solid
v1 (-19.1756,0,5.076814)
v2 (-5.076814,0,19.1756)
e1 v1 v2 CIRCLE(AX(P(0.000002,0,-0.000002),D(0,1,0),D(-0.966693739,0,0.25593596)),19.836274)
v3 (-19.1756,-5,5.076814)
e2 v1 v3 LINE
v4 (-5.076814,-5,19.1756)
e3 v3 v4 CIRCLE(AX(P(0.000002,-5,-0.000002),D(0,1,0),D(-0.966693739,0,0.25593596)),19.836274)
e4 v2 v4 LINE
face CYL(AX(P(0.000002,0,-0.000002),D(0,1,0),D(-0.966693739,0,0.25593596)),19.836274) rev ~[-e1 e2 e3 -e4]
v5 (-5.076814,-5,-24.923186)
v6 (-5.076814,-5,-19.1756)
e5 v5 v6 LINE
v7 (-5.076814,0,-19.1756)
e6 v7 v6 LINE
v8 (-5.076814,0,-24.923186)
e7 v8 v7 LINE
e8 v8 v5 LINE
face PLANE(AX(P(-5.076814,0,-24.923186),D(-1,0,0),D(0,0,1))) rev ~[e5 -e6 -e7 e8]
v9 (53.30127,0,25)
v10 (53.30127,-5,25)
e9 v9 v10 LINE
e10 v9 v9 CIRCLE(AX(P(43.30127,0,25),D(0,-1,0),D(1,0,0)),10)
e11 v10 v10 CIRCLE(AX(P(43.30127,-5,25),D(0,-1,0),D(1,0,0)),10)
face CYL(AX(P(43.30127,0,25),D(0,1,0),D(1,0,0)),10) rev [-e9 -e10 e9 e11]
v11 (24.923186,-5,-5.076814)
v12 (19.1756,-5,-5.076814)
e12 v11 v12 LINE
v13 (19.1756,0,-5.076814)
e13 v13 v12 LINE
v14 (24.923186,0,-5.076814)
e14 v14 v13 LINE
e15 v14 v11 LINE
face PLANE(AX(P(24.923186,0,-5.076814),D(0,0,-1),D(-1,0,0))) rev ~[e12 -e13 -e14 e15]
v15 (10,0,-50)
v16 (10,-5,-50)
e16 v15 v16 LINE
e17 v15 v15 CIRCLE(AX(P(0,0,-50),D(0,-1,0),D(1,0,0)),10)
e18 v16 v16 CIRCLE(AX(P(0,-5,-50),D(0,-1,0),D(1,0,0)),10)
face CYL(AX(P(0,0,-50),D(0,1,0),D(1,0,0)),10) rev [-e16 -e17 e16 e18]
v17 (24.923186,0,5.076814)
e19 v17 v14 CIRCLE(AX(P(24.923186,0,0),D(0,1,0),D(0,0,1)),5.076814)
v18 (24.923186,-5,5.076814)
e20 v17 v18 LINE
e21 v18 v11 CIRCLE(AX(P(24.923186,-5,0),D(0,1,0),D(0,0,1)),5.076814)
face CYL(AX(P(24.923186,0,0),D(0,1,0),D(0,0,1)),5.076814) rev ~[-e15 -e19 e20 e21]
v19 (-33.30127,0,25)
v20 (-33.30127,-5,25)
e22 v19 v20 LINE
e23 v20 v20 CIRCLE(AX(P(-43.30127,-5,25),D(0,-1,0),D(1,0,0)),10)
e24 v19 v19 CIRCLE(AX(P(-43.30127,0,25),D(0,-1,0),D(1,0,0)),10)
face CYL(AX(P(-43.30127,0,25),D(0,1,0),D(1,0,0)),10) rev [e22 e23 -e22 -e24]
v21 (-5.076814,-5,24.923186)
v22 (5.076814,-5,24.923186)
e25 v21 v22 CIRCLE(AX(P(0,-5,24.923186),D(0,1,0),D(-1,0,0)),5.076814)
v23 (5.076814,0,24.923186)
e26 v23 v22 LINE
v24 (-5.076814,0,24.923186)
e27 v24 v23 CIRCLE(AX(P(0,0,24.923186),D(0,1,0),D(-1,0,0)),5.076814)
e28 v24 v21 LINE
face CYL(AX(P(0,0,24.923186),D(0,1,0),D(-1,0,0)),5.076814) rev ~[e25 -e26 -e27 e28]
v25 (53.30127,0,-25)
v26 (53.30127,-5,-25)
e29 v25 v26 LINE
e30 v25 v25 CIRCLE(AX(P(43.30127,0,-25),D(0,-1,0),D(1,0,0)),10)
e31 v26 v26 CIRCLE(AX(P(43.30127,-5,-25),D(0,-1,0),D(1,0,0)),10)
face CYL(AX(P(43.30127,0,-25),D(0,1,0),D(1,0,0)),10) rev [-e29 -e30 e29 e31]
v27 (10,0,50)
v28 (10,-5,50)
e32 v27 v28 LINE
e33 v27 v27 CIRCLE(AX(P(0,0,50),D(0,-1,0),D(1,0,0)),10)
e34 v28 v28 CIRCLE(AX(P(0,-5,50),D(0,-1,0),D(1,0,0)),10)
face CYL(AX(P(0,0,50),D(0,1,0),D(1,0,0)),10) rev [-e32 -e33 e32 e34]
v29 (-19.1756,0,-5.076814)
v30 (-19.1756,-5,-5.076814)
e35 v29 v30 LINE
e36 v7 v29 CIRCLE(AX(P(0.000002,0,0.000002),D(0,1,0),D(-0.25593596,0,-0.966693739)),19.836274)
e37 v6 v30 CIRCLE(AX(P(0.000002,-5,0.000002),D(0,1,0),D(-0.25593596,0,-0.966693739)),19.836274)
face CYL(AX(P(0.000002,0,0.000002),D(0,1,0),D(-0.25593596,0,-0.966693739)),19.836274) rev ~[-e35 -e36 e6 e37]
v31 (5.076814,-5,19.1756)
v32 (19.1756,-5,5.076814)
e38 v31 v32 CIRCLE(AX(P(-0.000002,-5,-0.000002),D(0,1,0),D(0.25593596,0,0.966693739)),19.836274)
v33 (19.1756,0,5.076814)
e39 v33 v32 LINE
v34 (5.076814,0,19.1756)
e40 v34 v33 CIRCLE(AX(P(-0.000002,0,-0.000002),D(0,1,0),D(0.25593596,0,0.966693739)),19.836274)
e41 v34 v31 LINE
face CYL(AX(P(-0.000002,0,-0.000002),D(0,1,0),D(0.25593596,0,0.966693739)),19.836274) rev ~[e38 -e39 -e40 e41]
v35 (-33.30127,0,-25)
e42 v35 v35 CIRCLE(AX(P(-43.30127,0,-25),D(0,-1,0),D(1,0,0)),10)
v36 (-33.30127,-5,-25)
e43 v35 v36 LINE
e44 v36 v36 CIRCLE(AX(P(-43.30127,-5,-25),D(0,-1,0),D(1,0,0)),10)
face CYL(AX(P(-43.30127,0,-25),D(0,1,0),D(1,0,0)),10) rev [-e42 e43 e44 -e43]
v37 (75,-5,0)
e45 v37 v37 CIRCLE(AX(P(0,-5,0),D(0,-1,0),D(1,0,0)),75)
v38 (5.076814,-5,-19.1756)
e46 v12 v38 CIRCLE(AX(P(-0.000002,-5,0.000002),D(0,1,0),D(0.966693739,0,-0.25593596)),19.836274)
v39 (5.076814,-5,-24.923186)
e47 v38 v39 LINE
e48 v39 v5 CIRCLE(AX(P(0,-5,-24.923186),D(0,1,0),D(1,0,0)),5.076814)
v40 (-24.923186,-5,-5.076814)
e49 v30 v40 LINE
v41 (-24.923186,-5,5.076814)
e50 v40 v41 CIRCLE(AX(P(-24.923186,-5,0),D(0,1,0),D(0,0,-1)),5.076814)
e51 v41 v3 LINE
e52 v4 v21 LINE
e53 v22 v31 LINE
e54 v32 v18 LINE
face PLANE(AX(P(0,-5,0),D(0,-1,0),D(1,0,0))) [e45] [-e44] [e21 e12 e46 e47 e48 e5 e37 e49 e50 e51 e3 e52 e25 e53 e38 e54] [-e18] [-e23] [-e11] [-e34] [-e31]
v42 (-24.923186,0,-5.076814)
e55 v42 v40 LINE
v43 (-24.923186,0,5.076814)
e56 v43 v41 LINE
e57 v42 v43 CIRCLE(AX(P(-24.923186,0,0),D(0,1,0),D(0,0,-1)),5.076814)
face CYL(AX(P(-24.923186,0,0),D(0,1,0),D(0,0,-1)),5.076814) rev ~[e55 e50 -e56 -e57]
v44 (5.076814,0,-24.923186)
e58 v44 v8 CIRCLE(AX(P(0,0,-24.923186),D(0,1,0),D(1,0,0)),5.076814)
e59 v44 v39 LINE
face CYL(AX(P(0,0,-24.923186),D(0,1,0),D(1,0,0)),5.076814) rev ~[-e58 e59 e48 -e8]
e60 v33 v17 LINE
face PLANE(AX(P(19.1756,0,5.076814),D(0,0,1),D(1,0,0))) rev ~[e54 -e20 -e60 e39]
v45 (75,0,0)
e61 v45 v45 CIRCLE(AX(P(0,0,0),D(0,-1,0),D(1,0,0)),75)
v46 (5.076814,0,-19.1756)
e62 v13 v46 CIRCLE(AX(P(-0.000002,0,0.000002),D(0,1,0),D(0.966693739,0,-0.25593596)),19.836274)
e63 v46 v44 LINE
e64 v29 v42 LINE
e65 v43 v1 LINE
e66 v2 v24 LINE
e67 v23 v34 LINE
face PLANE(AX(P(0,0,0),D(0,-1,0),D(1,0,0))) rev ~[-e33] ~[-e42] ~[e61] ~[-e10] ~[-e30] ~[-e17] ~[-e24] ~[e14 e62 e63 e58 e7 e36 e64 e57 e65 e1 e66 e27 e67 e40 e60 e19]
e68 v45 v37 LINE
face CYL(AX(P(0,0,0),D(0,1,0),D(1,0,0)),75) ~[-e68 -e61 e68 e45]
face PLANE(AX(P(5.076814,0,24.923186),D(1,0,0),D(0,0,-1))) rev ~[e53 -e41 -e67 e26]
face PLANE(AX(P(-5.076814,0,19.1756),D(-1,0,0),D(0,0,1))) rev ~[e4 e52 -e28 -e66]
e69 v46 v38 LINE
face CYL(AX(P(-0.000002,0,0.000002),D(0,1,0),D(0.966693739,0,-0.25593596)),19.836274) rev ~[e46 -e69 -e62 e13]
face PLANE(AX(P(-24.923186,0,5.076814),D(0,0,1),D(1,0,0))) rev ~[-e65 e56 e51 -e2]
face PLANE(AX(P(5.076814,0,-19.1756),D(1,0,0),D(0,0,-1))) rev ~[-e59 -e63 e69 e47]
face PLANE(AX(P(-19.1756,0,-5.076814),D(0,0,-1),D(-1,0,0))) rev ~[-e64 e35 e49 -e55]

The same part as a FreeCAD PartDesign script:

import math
import FreeCAD as App
import Part
import Sketcher

V = App.Vector
Q = App.Units.Quantity

doc = App.newDocument("Part")
body = doc.addObject("PartDesign::Body", "Body")

# Sketch on XZ plane
sketch1 = body.newObject("Sketcher::SketchObject", "Sketch")
sketch1.AttachmentSupport = (doc.getObject("XZ_Plane"), [""])
sketch1.MapMode = "FlatFace"
sketch1.addGeometry(Part.Circle(V(0, 0, 0), V(0, 0, 1), 75), False)
sketch1.addGeometry(Part.Circle(V(-43.30127, -25, 0), V(0, 0, 1), 10), False)
sketch1.addGeometry(Part.Circle(V(0, -50, 0), V(0, 0, 1), 10), False)
sketch1.addGeometry(Part.Circle(V(43.30127, -25, 0), V(0, 0, 1), 10), False)
sketch1.addGeometry(Part.Circle(V(-43.30127, 25, 0), V(0, 0, 1), 10), False)
sketch1.addGeometry(Part.LineSegment(V(-24.923186, 5.076814, 0), V(-19.1756, 5.076814, 0)), False)
sketch1.addGeometry(Part.ArcOfCircle(Part.Circle(V(0.000002, -0.000002, 0), V(0, 0, 1), 19.836274), math.radians(104.829052), math.radians(165.170948)), False)
sketch1.addGeometry(Part.LineSegment(V(-5.076814, 19.1756, 0), V(-5.076814, 24.923186, 0)), False)
sketch1.addGeometry(Part.ArcOfCircle(Part.Circle(V(0, 24.923186, 0), V(0, 0, 1), 5.076814), math.radians(0), math.radians(180)), False)
sketch1.addGeometry(Part.LineSegment(V(5.076814, 24.923186, 0), V(5.076814, 19.1756, 0)), False)
sketch1.addGeometry(Part.ArcOfCircle(Part.Circle(V(-0.000002, -0.000002, 0), V(0, 0, 1), 19.836274), math.radians(14.829052), math.radians(75.170948)), False)
sketch1.addGeometry(Part.LineSegment(V(19.1756, 5.076814, 0), V(24.923186, 5.076814, 0)), False)
sketch1.addGeometry(Part.ArcOfCircle(Part.Circle(V(24.923186, 0, 0), V(0, 0, 1), 5.076814), math.radians(-90), math.radians(90)), False)
sketch1.addGeometry(Part.LineSegment(V(24.923186, -5.076814, 0), V(19.1756, -5.076814, 0)), False)
sketch1.addGeometry(Part.ArcOfCircle(Part.Circle(V(-0.000002, 0.000002, 0), V(0, 0, 1), 19.836274), math.radians(-75.170948), math.radians(-14.829052)), False)
sketch1.addGeometry(Part.LineSegment(V(5.076814, -19.1756, 0), V(5.076814, -24.923186, 0)), False)
sketch1.addGeometry(Part.ArcOfCircle(Part.Circle(V(0, -24.923186, 0), V(0, 0, 1), 5.076814), math.radians(180), math.radians(360)), False)
sketch1.addGeometry(Part.LineSegment(V(-5.076814, -24.923186, 0), V(-5.076814, -19.1756, 0)), False)
sketch1.addGeometry(Part.ArcOfCircle(Part.Circle(V(0.000002, 0.000002, 0), V(0, 0, 1), 19.836274), math.radians(-165.170948), math.radians(-104.829052)), False)
sketch1.addGeometry(Part.LineSegment(V(-19.1756, -5.076814, 0), V(-24.923186, -5.076814, 0)), False)
sketch1.addGeometry(Part.ArcOfCircle(Part.Circle(V(-24.923186, 0, 0), V(0, 0, 1), 5.076814), math.radians(90), math.radians(270)), False)
sketch1.addGeometry(Part.Circle(V(43.30127, 25, 0), V(0, 0, 1), 10), False)
sketch1.addGeometry(Part.Circle(V(0, 50, 0), V(0, 0, 1), 10), False)
sketch1.addConstraint(Sketcher.Constraint("Coincident", 5, 2, 6, 2))
sketch1.addConstraint(Sketcher.Constraint("Coincident", 6, 1, 7, 1))
sketch1.addConstraint(Sketcher.Constraint("Tangent", 7, 2, 8, 2))
sketch1.addConstraint(Sketcher.Constraint("Tangent", 8, 1, 9, 1))
sketch1.addConstraint(Sketcher.Constraint("Coincident", 9, 2, 10, 2))
sketch1.addConstraint(Sketcher.Constraint("Coincident", 10, 1, 11, 1))
sketch1.addConstraint(Sketcher.Constraint("Tangent", 11, 2, 12, 2))
sketch1.addConstraint(Sketcher.Constraint("Tangent", 12, 1, 13, 1))
sketch1.addConstraint(Sketcher.Constraint("Coincident", 13, 2, 14, 2))
sketch1.addConstraint(Sketcher.Constraint("Coincident", 14, 1, 15, 1))
sketch1.addConstraint(Sketcher.Constraint("Tangent", 15, 2, 16, 2))
sketch1.addConstraint(Sketcher.Constraint("Tangent", 16, 1, 17, 1))
sketch1.addConstraint(Sketcher.Constraint("Coincident", 17, 2, 18, 2))
sketch1.addConstraint(Sketcher.Constraint("Coincident", 18, 1, 19, 1))
sketch1.addConstraint(Sketcher.Constraint("Tangent", 19, 2, 20, 2))
sketch1.addConstraint(Sketcher.Constraint("Tangent", 20, 1, 5, 1))
sketch1.addConstraint(Sketcher.Constraint("Horizontal", 5))
sketch1.addConstraint(Sketcher.Constraint("Vertical", 7))
sketch1.addConstraint(Sketcher.Constraint("Vertical", 9))
sketch1.addConstraint(Sketcher.Constraint("Horizontal", 11))
sketch1.addConstraint(Sketcher.Constraint("Horizontal", 13))
sketch1.addConstraint(Sketcher.Constraint("Vertical", 15))
sketch1.addConstraint(Sketcher.Constraint("Vertical", 17))
sketch1.addConstraint(Sketcher.Constraint("Horizontal", 19))
sketch1.addConstraint(Sketcher.Constraint("Coincident", 0, 3, -1, 1))
sketch1.addConstraint(Sketcher.Constraint("Coincident", 6, 3, -1, 1))
sketch1.addConstraint(Sketcher.Constraint("Coincident", 10, 3, -1, 1))
sketch1.addConstraint(Sketcher.Constraint("Coincident", 14, 3, -1, 1))
sketch1.addConstraint(Sketcher.Constraint("Coincident", 18, 3, -1, 1))
sketch1.addConstraint(Sketcher.Constraint("Equal", 1, 2))
sketch1.addConstraint(Sketcher.Constraint("Equal", 2, 3))
sketch1.addConstraint(Sketcher.Constraint("Equal", 3, 4))
sketch1.addConstraint(Sketcher.Constraint("Equal", 6, 10))
sketch1.addConstraint(Sketcher.Constraint("Equal", 8, 12))
sketch1.addConstraint(Sketcher.Constraint("Equal", 10, 14))
sketch1.addConstraint(Sketcher.Constraint("Equal", 12, 16))
sketch1.addConstraint(Sketcher.Constraint("Equal", 14, 18))
sketch1.addConstraint(Sketcher.Constraint("Equal", 16, 20))
sketch1.addConstraint(Sketcher.Constraint("Equal", 4, 21))
sketch1.addConstraint(Sketcher.Constraint("Equal", 21, 22))
sketch1.addConstraint(Sketcher.Constraint("Symmetric", 3, 3, 4, 3, -1, 1))
sketch1.addConstraint(Sketcher.Constraint("Symmetric", 8, 3, 16, 3, -1, 1))
sketch1.addConstraint(Sketcher.Constraint("Symmetric", 12, 3, 20, 3, -1, 1))
sketch1.addConstraint(Sketcher.Constraint("Symmetric", 1, 3, 21, 3, -1, 1))
sketch1.addConstraint(Sketcher.Constraint("Symmetric", 2, 3, 22, 3, -1, 1))
sketch1.addConstraint(Sketcher.Constraint("Symmetric", 1, 3, 3, 3, -2))
sketch1.addConstraint(Sketcher.Constraint("PointOnObject", 2, 3, -2))
sketch1.addConstraint(Sketcher.Constraint("PointOnObject", 8, 3, -2))
sketch1.addConstraint(Sketcher.Constraint("PointOnObject", 12, 3, -1))
sketch1.addConstraint(Sketcher.Constraint("Equal", 19, 7))
sketch1.addConstraint(Sketcher.Constraint("Diameter", 0, Q("150 mm")))
sketch1.addConstraint(Sketcher.Constraint("Diameter", 1, Q("20 mm")))
sketch1.addConstraint(Sketcher.Constraint("DistanceY", 1, 3, -1, 1, Q("25 mm")))
sketch1.addConstraint(Sketcher.Constraint("DistanceY", 2, 3, -1, 1, Q("50 mm")))
sketch1.addConstraint(Sketcher.Constraint("Radius", 6, Q("19.836274 mm")))
sketch1.addConstraint(Sketcher.Constraint("Radius", 8, Q("5.076814 mm")))
sketch1.addConstraint(Sketcher.Constraint("DistanceX", 5, 1, 5, 2, Q("5.747586 mm")))
sketch1.addConstraint(Sketcher.Constraint("DistanceX", 1, 3, -1, 1, Q("43.30127 mm")))
pad1 = body.newObject("PartDesign::Pad", "Pad")
pad1.Profile = sketch1
pad1.Length = 5

doc.recompute()
